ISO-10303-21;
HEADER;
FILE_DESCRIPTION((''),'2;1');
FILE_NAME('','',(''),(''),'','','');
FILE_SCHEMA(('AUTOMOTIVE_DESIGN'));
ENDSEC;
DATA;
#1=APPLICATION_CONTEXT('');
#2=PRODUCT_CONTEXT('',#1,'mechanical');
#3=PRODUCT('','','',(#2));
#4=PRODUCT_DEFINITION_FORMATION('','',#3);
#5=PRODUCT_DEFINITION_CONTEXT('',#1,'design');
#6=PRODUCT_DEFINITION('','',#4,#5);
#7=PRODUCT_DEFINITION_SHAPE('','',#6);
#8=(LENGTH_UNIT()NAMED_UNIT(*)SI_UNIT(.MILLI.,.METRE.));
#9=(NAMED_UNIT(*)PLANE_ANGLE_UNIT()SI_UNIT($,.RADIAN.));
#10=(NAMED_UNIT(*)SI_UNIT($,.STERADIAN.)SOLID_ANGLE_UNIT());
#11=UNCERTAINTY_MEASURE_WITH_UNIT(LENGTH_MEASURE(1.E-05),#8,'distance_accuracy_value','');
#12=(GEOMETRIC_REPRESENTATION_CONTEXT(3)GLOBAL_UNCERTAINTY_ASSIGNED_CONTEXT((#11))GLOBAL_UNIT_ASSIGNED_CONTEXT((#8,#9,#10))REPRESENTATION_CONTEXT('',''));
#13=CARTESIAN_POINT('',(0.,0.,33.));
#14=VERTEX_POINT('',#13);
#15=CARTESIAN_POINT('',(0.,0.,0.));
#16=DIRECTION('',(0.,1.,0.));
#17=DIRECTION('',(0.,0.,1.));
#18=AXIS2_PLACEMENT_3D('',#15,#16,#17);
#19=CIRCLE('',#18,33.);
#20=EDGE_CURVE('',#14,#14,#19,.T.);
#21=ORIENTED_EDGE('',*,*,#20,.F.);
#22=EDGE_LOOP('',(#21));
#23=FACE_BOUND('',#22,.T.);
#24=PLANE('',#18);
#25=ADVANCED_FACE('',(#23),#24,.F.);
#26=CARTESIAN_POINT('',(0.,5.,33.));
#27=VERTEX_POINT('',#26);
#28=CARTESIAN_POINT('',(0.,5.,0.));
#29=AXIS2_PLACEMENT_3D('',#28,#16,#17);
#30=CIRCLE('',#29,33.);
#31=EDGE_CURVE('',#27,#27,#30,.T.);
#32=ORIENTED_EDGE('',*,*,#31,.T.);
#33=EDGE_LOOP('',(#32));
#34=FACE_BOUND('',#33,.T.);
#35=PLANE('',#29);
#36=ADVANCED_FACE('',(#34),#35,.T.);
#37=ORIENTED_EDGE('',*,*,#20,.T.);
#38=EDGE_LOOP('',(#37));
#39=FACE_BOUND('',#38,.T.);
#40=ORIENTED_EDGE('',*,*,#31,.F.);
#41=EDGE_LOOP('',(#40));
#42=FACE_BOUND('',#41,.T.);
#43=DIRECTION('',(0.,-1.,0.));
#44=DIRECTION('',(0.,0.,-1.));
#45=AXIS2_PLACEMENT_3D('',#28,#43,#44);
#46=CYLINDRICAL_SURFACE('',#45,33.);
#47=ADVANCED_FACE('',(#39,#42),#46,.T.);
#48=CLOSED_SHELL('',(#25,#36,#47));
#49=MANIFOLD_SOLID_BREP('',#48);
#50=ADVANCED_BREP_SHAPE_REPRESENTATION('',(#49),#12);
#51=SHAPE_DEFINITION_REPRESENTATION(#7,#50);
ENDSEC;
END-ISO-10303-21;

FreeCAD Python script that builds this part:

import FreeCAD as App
import Part
import Sketcher
from FreeCAD import Vector
Q = App.Units.Quantity

doc = App.newDocument("Part")
params = doc.addObject("Spreadsheet::Sheet", "Params")
for row, (alias, value) in enumerate([
    ("sketch1_diameter", "66 mm"),
    ("pad1_length", "5 mm"),
], start=1):
    params.set(f"A{row}", alias)
    params.set(f"B{row}", "=" + value)
    params.setAlias(f"B{row}", alias)

body = doc.addObject("PartDesign::Body", "Body")

# Sketch on XZ plane
sketch1 = doc.addObject("Sketcher::SketchObject", "Sketch")
body.addObject(sketch1)
sketch1.AttachmentSupport = (doc.XZ_Plane, [""])
sketch1.MapMode = "FlatFace"
sketch1.addGeometry(Part.Circle(Vector(0, 0, 0), Vector(0, 0, 1), 33), False)
sketch1.addConstraint([
    Sketcher.Constraint("Coincident", 0, 3, -1, 1),
    Sketcher.Constraint("Diameter", 0, Q("66 mm")),
])
sketch1.setExpression("Constraints[1]", "Params.sketch1_diameter")
pad1 = doc.addObject("PartDesign::Pad", "Pad")
body.addObject(pad1)
pad1.Profile = sketch1
pad1.setExpression("Length", "Params.pad1_length")
pad1.Reversed = True

doc.recompute()
